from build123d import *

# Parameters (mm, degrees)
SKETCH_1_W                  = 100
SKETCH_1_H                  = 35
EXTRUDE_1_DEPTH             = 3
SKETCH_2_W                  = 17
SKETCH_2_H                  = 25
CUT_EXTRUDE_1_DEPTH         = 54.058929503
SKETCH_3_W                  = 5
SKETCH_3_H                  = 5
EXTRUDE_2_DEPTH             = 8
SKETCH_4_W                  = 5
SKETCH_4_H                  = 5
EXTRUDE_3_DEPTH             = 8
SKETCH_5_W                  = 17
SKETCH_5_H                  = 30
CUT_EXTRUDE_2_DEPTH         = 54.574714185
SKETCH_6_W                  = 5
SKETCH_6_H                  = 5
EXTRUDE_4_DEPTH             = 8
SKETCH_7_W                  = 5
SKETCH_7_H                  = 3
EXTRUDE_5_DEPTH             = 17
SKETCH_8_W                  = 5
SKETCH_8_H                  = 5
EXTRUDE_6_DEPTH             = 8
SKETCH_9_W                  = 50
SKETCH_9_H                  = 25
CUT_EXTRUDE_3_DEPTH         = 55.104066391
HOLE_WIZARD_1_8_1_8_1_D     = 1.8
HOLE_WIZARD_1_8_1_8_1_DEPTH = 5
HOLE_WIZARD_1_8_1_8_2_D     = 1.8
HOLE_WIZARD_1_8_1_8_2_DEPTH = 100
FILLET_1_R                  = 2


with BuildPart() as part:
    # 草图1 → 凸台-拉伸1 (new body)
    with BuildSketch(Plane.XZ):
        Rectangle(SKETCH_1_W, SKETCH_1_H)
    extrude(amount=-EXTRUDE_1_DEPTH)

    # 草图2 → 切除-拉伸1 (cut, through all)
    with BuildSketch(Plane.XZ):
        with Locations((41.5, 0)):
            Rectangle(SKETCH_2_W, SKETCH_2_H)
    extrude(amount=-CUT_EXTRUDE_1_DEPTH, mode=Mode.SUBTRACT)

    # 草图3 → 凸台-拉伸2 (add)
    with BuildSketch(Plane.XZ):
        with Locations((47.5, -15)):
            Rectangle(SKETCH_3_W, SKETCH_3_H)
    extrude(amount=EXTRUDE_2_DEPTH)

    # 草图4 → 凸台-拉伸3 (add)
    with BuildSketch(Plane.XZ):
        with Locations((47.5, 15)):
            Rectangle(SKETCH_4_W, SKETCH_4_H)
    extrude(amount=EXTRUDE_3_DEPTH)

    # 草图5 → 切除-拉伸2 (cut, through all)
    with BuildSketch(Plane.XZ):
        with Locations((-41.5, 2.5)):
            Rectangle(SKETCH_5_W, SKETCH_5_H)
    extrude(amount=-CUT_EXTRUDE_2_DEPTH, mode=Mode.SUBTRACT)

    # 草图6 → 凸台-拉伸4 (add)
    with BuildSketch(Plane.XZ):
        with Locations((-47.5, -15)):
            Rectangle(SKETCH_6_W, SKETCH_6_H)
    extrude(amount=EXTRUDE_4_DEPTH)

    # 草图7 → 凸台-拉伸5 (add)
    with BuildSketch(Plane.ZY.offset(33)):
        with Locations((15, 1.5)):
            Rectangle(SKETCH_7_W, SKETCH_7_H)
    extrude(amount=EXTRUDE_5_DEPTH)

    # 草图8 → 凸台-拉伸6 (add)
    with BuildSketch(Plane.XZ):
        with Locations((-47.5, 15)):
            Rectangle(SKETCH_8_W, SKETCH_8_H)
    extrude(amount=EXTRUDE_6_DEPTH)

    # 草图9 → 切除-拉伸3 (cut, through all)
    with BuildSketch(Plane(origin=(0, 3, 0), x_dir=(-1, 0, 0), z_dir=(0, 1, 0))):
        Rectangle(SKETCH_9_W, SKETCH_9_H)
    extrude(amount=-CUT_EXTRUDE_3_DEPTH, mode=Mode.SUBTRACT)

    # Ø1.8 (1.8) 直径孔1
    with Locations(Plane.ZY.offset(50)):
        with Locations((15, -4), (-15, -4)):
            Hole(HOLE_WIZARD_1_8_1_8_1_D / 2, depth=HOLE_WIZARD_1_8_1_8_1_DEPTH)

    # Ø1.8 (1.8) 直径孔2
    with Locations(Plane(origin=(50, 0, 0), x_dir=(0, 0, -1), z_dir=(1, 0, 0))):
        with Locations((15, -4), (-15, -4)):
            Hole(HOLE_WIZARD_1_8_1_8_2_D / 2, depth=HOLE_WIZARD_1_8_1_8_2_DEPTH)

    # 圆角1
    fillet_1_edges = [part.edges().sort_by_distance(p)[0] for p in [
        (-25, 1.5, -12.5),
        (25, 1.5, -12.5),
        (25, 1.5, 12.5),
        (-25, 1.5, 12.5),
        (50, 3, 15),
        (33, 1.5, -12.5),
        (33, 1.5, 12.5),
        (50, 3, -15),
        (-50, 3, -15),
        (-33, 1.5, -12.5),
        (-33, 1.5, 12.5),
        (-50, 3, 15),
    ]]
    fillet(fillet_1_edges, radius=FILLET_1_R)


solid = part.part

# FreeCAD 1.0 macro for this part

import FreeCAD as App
import Part
import Sketcher
Q = App.Units.Quantity


def edges_at(feature, points):
    """Names of the edges that pass closest to the given points."""
    edges = feature.Shape.Edges
    near = lambda p: min(range(len(edges)), key=lambda i: edges[i].distToShape(Part.Vertex(*p))[0])
    return sorted({f"Edge{near(p) + 1}" for p in points})

doc = App.newDocument("Part")
body = doc.addObject("PartDesign::Body", "Body")

# Sketch on XZ plane
sketch1 = body.newObject("Sketcher::SketchObject", "Sketch")
sketch1.AttachmentSupport = (doc.getObject("XZ_Plane"), [""])
sketch1.MapMode = "FlatFace"
sketch1.addGeometry(Part.LineSegment(App.Vector(-50, 18, 0), App.Vector(-50, -18, 0)), False)
sketch1.addGeometry(Part.LineSegment(App.Vector(-50, -18, 0), App.Vector(50, -18, 0)), False)
sketch1.addGeometry(Part.LineSegment(App.Vector(50, -18, 0), App.Vector(50, 18, 0)), False)
sketch1.addGeometry(Part.LineSegment(App.Vector(50, 18, 0), App.Vector(-50, 18, 0)), False)
sketch1.addConstraint(Sketcher.Constraint("Coincident", 0, 2, 1, 1))
sketch1.addConstraint(Sketcher.Constraint("Coincident", 1, 2, 2, 1))
sketch1.addConstraint(Sketcher.Constraint("Coincident", 2, 2, 3, 1))
sketch1.addConstraint(Sketcher.Constraint("Coincident", 3, 2, 0, 1))
sketch1.addConstraint(Sketcher.Constraint("Vertical", 0))
sketch1.addConstraint(Sketcher.Constraint("Horizontal", 1))
sketch1.addConstraint(Sketcher.Constraint("Vertical", 2))
sketch1.addConstraint(Sketcher.Constraint("Horizontal", 3))
sketch1.addConstraint(Sketcher.Constraint("Symmetric", 0, 2, 2, 2, -1, 1))
sketch1.addConstraint(Sketcher.Constraint("DistanceX", 1, 1, 1, 2, Q("100 mm")))
sketch1.addConstraint(Sketcher.Constraint("DistanceY", 0, 2, 0, 1, Q("35 mm")))
pad1 = body.newObject("PartDesign::Pad", "Pad")
pad1.Profile = sketch1
pad1.Length = 3
pad1.Reversed = True

# Sketch on XZ plane
sketch2 = body.newObject("Sketcher::SketchObject", "Sketch001")
sketch2.AttachmentSupport = (doc.getObject("XZ_Plane"), [""])
sketch2.MapMode = "FlatFace"
sketch2.addGeometry(Part.LineSegment(App.Vector(33, 12, 0), App.Vector(33, -12, 0)), False)
sketch2.addGeometry(Part.LineSegment(App.Vector(33, -12, 0), App.Vector(50, -12, 0)), False)
sketch2.addGeometry(Part.LineSegment(App.Vector(50, -12, 0), App.Vector(50, 12, 0)), False)
sketch2.addGeometry(Part.LineSegment(App.Vector(50, 12, 0), App.Vector(33, 12, 0)), False)
sketch2.addConstraint(Sketcher.Constraint("Coincident", 0, 2, 1, 1))
sketch2.addConstraint(Sketcher.Constraint("Coincident", 1, 2, 2, 1))
sketch2.addConstraint(Sketcher.Constraint("Coincident", 2, 2, 3, 1))
sketch2.addConstraint(Sketcher.Constraint("Coincident", 3, 2, 0, 1))
sketch2.addConstraint(Sketcher.Constraint("Vertical", 0))
sketch2.addConstraint(Sketcher.Constraint("Horizontal", 1))
sketch2.addConstraint(Sketcher.Constraint("Vertical", 2))
sketch2.addConstraint(Sketcher.Constraint("Horizontal", 3))
sketch2.addConstraint(Sketcher.Constraint("DistanceX", 1, 1, 1, 2, Q("17 mm")))
sketch2.addConstraint(Sketcher.Constraint("DistanceY", 0, 2, 0, 1, Q("25 mm")))
sketch2.addConstraint(Sketcher.Constraint("DistanceX", -1, 1, 0, 2, Q("33 mm")))
sketch2.addConstraint(Sketcher.Constraint("DistanceY", 0, 2, -1, 1, Q("12.5 mm")))
pocket1 = body.newObject("PartDesign::Pocket", "Pocket")
pocket1.Profile = sketch2
pocket1.Type = "ThroughAll"

# Sketch on XZ plane
sketch3 = body.newObject("Sketcher::SketchObject", "Sketch002")
sketch3.AttachmentSupport = (doc.getObject("XZ_Plane"), [""])
sketch3.MapMode = "FlatFace"
sketch3.addGeometry(Part.LineSegment(App.Vector(45, -12, 0), App.Vector(45, -18, 0)), False)
sketch3.addGeometry(Part.LineSegment(App.Vector(45, -18, 0), App.Vector(50, -18, 0)), False)
sketch3.addGeometry(Part.LineSegment(App.Vector(50, -18, 0), App.Vector(50, -12, 0)), False)
sketch3.addGeometry(Part.LineSegment(App.Vector(50, -12, 0), App.Vector(45, -12, 0)), False)
sketch3.addConstraint(Sketcher.Constraint("Coincident", 0, 2, 1, 1))
sketch3.addConstraint(Sketcher.Constraint("Coincident", 1, 2, 2, 1))
sketch3.addConstraint(Sketcher.Constraint("Coincident", 2, 2, 3, 1))
sketch3.addConstraint(Sketcher.Constraint("Coincident", 3, 2, 0, 1))
sketch3.addConstraint(Sketcher.Constraint("Vertical", 0))
sketch3.addConstraint(Sketcher.Constraint("Horizontal", 1))
sketch3.addConstraint(Sketcher.Constraint("Vertical", 2))
sketch3.addConstraint(Sketcher.Constraint("Horizontal", 3))
sketch3.addConstraint(Sketcher.Constraint("Equal", 3, 0))
sketch3.addConstraint(Sketcher.Constraint("DistanceX", 1, 1, 1, 2, Q("5 mm")))
sketch3.addConstraint(Sketcher.Constraint("DistanceX", -1, 1, 0, 2, Q("45 mm")))
sketch3.addConstraint(Sketcher.Constraint("DistanceY", 0, 2, -1, 1, Q("17.5 mm")))
pad2 = body.newObject("PartDesign::Pad", "Pad001")
pad2.Profile = sketch3
pad2.Length = 8

# Sketch on XZ plane
sketch4 = body.newObject("Sketcher::SketchObject", "Sketch003")
sketch4.AttachmentSupport = (doc.getObject("XZ_Plane"), [""])
sketch4.MapMode = "FlatFace"
sketch4.addGeometry(Part.LineSegment(App.Vector(45, 18, 0), App.Vector(45, 12, 0)), False)
sketch4.addGeometry(Part.LineSegment(App.Vector(45, 12, 0), App.Vector(50, 12, 0)), False)
sketch4.addGeometry(Part.LineSegment(App.Vector(50, 12, 0), App.Vector(50, 18, 0)), False)
sketch4.addGeometry(Part.LineSegment(App.Vector(50, 18, 0), App.Vector(45, 18, 0)), False)
sketch4.addConstraint(Sketcher.Constraint("Coincident", 0, 2, 1, 1))
sketch4.addConstraint(Sketcher.Constraint("Coincident", 1, 2, 2, 1))
sketch4.addConstraint(Sketcher.Constraint("Coincident", 2, 2, 3, 1))
sketch4.addConstraint(Sketcher.Constraint("Coincident", 3, 2, 0, 1))
sketch4.addConstraint(Sketcher.Constraint("Vertical", 0))
sketch4.addConstraint(Sketcher.Constraint("Horizontal", 1))
sketch4.addConstraint(Sketcher.Constraint("Vertical", 2))
sketch4.addConstraint(Sketcher.Constraint("Horizontal", 3))
sketch4.addConstraint(Sketcher.Constraint("Equal", 3, 0))
sketch4.addConstraint(Sketcher.Constraint("DistanceX", 1, 1, 1, 2, Q("5 mm")))
sketch4.addConstraint(Sketcher.Constraint("DistanceX", -1, 1, 0, 2, Q("45 mm")))
sketch4.addConstraint(Sketcher.Constraint("DistanceY", -1, 1, 0, 2, Q("12.5 mm")))
pad3 = body.newObject("PartDesign::Pad", "Pad002")
pad3.Profile = sketch4
pad3.Length = 8

# Sketch on XZ plane
sketch5 = body.newObject("Sketcher::SketchObject", "Sketch004")
sketch5.AttachmentSupport = (doc.getObject("XZ_Plane"), [""])
sketch5.MapMode = "FlatFace"
sketch5.addGeometry(Part.LineSegment(App.Vector(-50, 18, 0), App.Vector(-50, -12, 0)), False)
sketch5.addGeometry(Part.LineSegment(App.Vector(-50, -12, 0), App.Vector(-33, -12, 0)), False)
sketch5.addGeometry(Part.LineSegment(App.Vector(-33, -12, 0), App.Vector(-33, 18, 0)), False)
sketch5.addGeometry(Part.LineSegment(App.Vector(-33, 18, 0), App.Vector(-50, 18, 0)), False)
sketch5.addConstraint(Sketcher.Constraint("Coincident", 0, 2, 1, 1))
sketch5.addConstraint(Sketcher.Constraint("Coincident", 1, 2, 2, 1))
sketch5.addConstraint(Sketcher.Constraint("Coincident", 2, 2, 3, 1))
sketch5.addConstraint(Sketcher.Constraint("Coincident", 3, 2, 0, 1))
sketch5.addConstraint(Sketcher.Constraint("Vertical", 0))
sketch5.addConstraint(Sketcher.Constraint("Horizontal", 1))
sketch5.addConstraint(Sketcher.Constraint("Vertical", 2))
sketch5.addConstraint(Sketcher.Constraint("Horizontal", 3))
sketch5.addConstraint(Sketcher.Constraint("DistanceX", 1, 1, 1, 2, Q("17 mm")))
sketch5.addConstraint(Sketcher.Constraint("DistanceY", 0, 2, 0, 1, Q("30 mm")))
sketch5.addConstraint(Sketcher.Constraint("DistanceX", 0, 2, -1, 1, Q("50 mm")))
sketch5.addConstraint(Sketcher.Constraint("DistanceY", 0, 2, -1, 1, Q("12.5 mm")))
pocket2 = body.newObject("PartDesign::Pocket", "Pocket001")
pocket2.Profile = sketch5
pocket2.Type = "ThroughAll"

# Sketch on XZ plane
sketch6 = body.newObject("Sketcher::SketchObject", "Sketch005")
sketch6.AttachmentSupport = (doc.getObject("XZ_Plane"), [""])
sketch6.MapMode = "FlatFace"
sketch6.addGeometry(Part.LineSegment(App.Vector(-50, -12, 0), App.Vector(-50, -18, 0)), False)
sketch6.addGeometry(Part.LineSegment(App.Vector(-50, -18, 0), App.Vector(-45, -18, 0)), False)
sketch6.addGeometry(Part.LineSegment(App.Vector(-45, -18, 0), App.Vector(-45, -12, 0)), False)
sketch6.addGeometry(Part.LineSegment(App.Vector(-45, -12, 0), App.Vector(-50, -12, 0)), False)
sketch6.addConstraint(Sketcher.Constraint("Coincident", 0, 2, 1, 1))
sketch6.addConstraint(Sketcher.Constraint("Coincident", 1, 2, 2, 1))
sketch6.addConstraint(Sketcher.Constraint("Coincident", 2, 2, 3, 1))
sketch6.addConstraint(Sketcher.Constraint("Coincident", 3, 2, 0, 1))
sketch6.addConstraint(Sketcher.Constraint("Vertical", 0))
sketch6.addConstraint(Sketcher.Constraint("Horizontal", 1))
sketch6.addConstraint(Sketcher.Constraint("Vertical", 2))
sketch6.addConstraint(Sketcher.Constraint("Horizontal", 3))
sketch6.addConstraint(Sketcher.Constraint("Equal", 3, 0))
sketch6.addConstraint(Sketcher.Constraint("DistanceX", 1, 1, 1, 2, Q("5 mm")))
sketch6.addConstraint(Sketcher.Constraint("DistanceX", 0, 2, -1, 1, Q("50 mm")))
sketch6.addConstraint(Sketcher.Constraint("DistanceY", 0, 2, -1, 1, Q("17.5 mm")))
pad4 = body.newObject("PartDesign::Pad", "Pad003")
pad4.Profile = sketch6
pad4.Length = 8

# Sketch on YZ plane
sketch7 = body.newObject("Sketcher::SketchObject", "Sketch006")
sketch7.AttachmentSupport = (doc.getObject("YZ_Plane"), [""])
sketch7.MapMode = "FlatFace"
sketch7.AttachmentOffset = App.Placement(App.Vector(0, 0, -33), App.Rotation())
sketch7.addGeometry(Part.LineSegment(App.Vector(3, 12.5, 0), App.Vector(0, 12.5, 0)), False)
sketch7.addGeometry(Part.LineSegment(App.Vector(0, 12.5, 0), App.Vector(0, 17.5, 0)), False)
sketch7.addGeometry(Part.LineSegment(App.Vector(0, 17.5, 0), App.Vector(3, 17.5, 0)), False)
sketch7.addGeometry(Part.LineSegment(App.Vector(3, 17.5, 0), App.Vector(3, 12.5, 0)), False)
sketch7.addConstraint(Sketcher.Constraint("Coincident", 0, 2, 1, 1))
sketch7.addConstraint(Sketcher.Constraint("Coincident", 1, 2, 2, 1))
sketch7.addConstraint(Sketcher.Constraint("Coincident", 2, 2, 3, 1))
sketch7.addConstraint(Sketcher.Constraint("Coincident", 3, 2, 0, 1))
sketch7.addConstraint(Sketcher.Constraint("Horizontal", 0))
sketch7.addConstraint(Sketcher.Constraint("Vertical", 1))
sketch7.addConstraint(Sketcher.Constraint("Horizontal", 2))
sketch7.addConstraint(Sketcher.Constraint("Vertical", 3))
sketch7.addConstraint(Sketcher.Constraint("PointOnObject", 0, 2, -2))
sketch7.addConstraint(Sketcher.Constraint("DistanceX", 0, 2, 0, 1, Q("3 mm")))
sketch7.addConstraint(Sketcher.Constraint("DistanceY", 1, 1, 1, 2, Q("5 mm")))
sketch7.addConstraint(Sketcher.Constraint("DistanceY", -1, 1, 0, 2, Q("12.5 mm")))
pad5 = body.newObject("PartDesign::Pad", "Pad004")
pad5.Profile = sketch7
pad5.Length = 17
pad5.Reversed = True

# Sketch on XZ plane
sketch8 = body.newObject("Sketcher::SketchObject", "Sketch007")
sketch8.AttachmentSupport = (doc.getObject("XZ_Plane"), [""])
sketch8.MapMode = "FlatFace"
sketch8.addGeometry(Part.LineSegment(App.Vector(-50, 18, 0), App.Vector(-50, 12, 0)), False)
sketch8.addGeometry(Part.LineSegment(App.Vector(-50, 12, 0), App.Vector(-45, 12, 0)), False)
sketch8.addGeometry(Part.LineSegment(App.Vector(-45, 12, 0), App.Vector(-45, 18, 0)), False)
sketch8.addGeometry(Part.LineSegment(App.Vector(-45, 18, 0), App.Vector(-50, 18, 0)), False)
sketch8.addConstraint(Sketcher.Constraint("Coincident", 0, 2, 1, 1))
sketch8.addConstraint(Sketcher.Constraint("Coincident", 1, 2, 2, 1))
sketch8.addConstraint(Sketcher.Constraint("Coincident", 2, 2, 3, 1))
sketch8.addConstraint(Sketcher.Constraint("Coincident", 3, 2, 0, 1))
sketch8.addConstraint(Sketcher.Constraint("Vertical", 0))
sketch8.addConstraint(Sketcher.Constraint("Horizontal", 1))
sketch8.addConstraint(Sketcher.Constraint("Vertical", 2))
sketch8.addConstraint(Sketcher.Constraint("Horizontal", 3))
sketch8.addConstraint(Sketcher.Constraint("Equal", 3, 0))
sketch8.addConstraint(Sketcher.Constraint("DistanceX", 1, 1, 1, 2, Q("5 mm")))
sketch8.addConstraint(Sketcher.Constraint("DistanceX", 0, 2, -1, 1, Q("50 mm")))
sketch8.addConstraint(Sketcher.Constraint("DistanceY", -1, 1, 0, 2, Q("12.5 mm")))
pad6 = body.newObject("PartDesign::Pad", "Pad005")
pad6.Profile = sketch8
pad6.Length = 8

# Sketch on XZ plane
sketch9 = body.newObject("Sketcher::SketchObject", "Sketch008")
sketch9.AttachmentSupport = (doc.getObject("XZ_Plane"), [""])
sketch9.MapMode = "FlatFace"
sketch9.AttachmentOffset = App.Placement(App.Vector(0, 0, -3), App.Rotation())
sketch9.addGeometry(Part.LineSegment(App.Vector(25, 12, 0), App.Vector(25, -12, 0)), False)
sketch9.addGeometry(Part.LineSegment(App.Vector(25, -12, 0), App.Vector(-25, -12, 0)), False)
sketch9.addGeometry(Part.LineSegment(App.Vector(-25, -12, 0), App.Vector(-25, 12, 0)), False)
sketch9.addGeometry(Part.LineSegment(App.Vector(-25, 12, 0), App.Vector(25, 12, 0)), False)
sketch9.addConstraint(Sketcher.Constraint("Coincident", 0, 2, 1, 1))
sketch9.addConstraint(Sketcher.Constraint("Coincident", 1, 2, 2, 1))
sketch9.addConstraint(Sketcher.Constraint("Coincident", 2, 2, 3, 1))
sketch9.addConstraint(Sketcher.Constraint("Coincident", 3, 2, 0, 1))
sketch9.addConstraint(Sketcher.Constraint("Vertical", 0))
sketch9.addConstraint(Sketcher.Constraint("Horizontal", 1))
sketch9.addConstraint(Sketcher.Constraint("Vertical", 2))
sketch9.addConstraint(Sketcher.Constraint("Horizontal", 3))
sketch9.addConstraint(Sketcher.Constraint("Symmetric", 0, 2, 2, 2, -1, 1))
sketch9.addConstraint(Sketcher.Constraint("DistanceX", 1, 2, 1, 1, Q("50 mm")))
sketch9.addConstraint(Sketcher.Constraint("DistanceY", 0, 2, 0, 1, Q("25 mm")))
pocket3 = body.newObject("PartDesign::Pocket", "Pocket002")
pocket3.Profile = sketch9
pocket3.Type = "ThroughAll"
pocket3.Reversed = True

# Sketch on YZ plane
sketch10 = body.newObject("Sketcher::SketchObject", "Sketch009")
sketch10.AttachmentSupport = (doc.getObject("YZ_Plane"), [""])
sketch10.MapMode = "FlatFace"
sketch10.AttachmentOffset = App.Placement(App.Vector(0, 0, -50), App.Rotation())
sketch10.addGeometry(Part.Circle(App.Vector(-4, 15, 0), App.Vector(0, 0, 1), 0.9), False)
sketch10.addGeometry(Part.Circle(App.Vector(-4, -15, 0), App.Vector(0, 0, 1), 0.9), False)
sketch10.addConstraint(Sketcher.Constraint("Equal", 0, 1))
sketch10.addConstraint(Sketcher.Constraint("Symmetric", 0, 3, 1, 3, -1))
sketch10.addConstraint(Sketcher.Constraint("Diameter", 0, Q("1.8 mm")))
sketch10.addConstraint(Sketcher.Constraint("DistanceX", 0, 3, -1, 1, Q("4 mm")))
sketch10.addConstraint(Sketcher.Constraint("DistanceY", -1, 1, 0, 3, Q("15 mm")))
doc.recompute()
hole = body.newObject("PartDesign::Hole", "Hole")
hole.Profile = sketch10
hole.ThreadType = "None"
hole.Diameter = 1.8
hole.DepthType = "Dimension"
hole.Depth = 5
hole.DrillPoint = "Flat"
hole.Reversed = True

# Sketch on YZ plane
sketch11 = body.newObject("Sketcher::SketchObject", "Sketch010")
sketch11.AttachmentSupport = (doc.getObject("YZ_Plane"), [""])
sketch11.MapMode = "FlatFace"
sketch11.AttachmentOffset = App.Placement(App.Vector(0, 0, 50), App.Rotation())
sketch11.addGeometry(Part.Circle(App.Vector(-4, -15, 0), App.Vector(0, 0, 1), 0.9), False)
sketch11.addGeometry(Part.Circle(App.Vector(-4, 15, 0), App.Vector(0, 0, 1), 0.9), False)
sketch11.addConstraint(Sketcher.Constraint("Equal", 0, 1))
sketch11.addConstraint(Sketcher.Constraint("Symmetric", 0, 3, 1, 3, -1))
sketch11.addConstraint(Sketcher.Constraint("Diameter", 0, Q("1.8 mm")))
sketch11.addConstraint(Sketcher.Constraint("DistanceX", 0, 3, -1, 1, Q("4 mm")))
sketch11.addConstraint(Sketcher.Constraint("DistanceY", 0, 3, -1, 1, Q("15 mm")))
doc.recompute()
hole2 = body.newObject("PartDesign::Hole", "Hole001")
hole2.Profile = sketch11
hole2.ThreadType = "None"
hole2.Diameter = 1.8
hole2.DepthType = "Dimension"
hole2.Depth = 100
hole2.DrillPoint = "Flat"
doc.recompute()

fillet = body.newObject("PartDesign::Fillet", "Fillet")
fillet.Base = (hole2, edges_at(hole2, [
    (-25, 1.5, -12.5),
    (25, 1.5, -12.5),
    (25, 1.5, 12.5),
    (-25, 1.5, 12.5),
    (50, 3, 15),
    (33, 1.5, -12.5),
    (33, 1.5, 12.5),
    (50, 3, -15),
    (-50, 3, -15),
    (-33, 1.5, -12.5),
    (-33, 1.5, 12.5),
    (-50, 3, 15),
]))
fillet.Radius = 2

doc.recompute()
